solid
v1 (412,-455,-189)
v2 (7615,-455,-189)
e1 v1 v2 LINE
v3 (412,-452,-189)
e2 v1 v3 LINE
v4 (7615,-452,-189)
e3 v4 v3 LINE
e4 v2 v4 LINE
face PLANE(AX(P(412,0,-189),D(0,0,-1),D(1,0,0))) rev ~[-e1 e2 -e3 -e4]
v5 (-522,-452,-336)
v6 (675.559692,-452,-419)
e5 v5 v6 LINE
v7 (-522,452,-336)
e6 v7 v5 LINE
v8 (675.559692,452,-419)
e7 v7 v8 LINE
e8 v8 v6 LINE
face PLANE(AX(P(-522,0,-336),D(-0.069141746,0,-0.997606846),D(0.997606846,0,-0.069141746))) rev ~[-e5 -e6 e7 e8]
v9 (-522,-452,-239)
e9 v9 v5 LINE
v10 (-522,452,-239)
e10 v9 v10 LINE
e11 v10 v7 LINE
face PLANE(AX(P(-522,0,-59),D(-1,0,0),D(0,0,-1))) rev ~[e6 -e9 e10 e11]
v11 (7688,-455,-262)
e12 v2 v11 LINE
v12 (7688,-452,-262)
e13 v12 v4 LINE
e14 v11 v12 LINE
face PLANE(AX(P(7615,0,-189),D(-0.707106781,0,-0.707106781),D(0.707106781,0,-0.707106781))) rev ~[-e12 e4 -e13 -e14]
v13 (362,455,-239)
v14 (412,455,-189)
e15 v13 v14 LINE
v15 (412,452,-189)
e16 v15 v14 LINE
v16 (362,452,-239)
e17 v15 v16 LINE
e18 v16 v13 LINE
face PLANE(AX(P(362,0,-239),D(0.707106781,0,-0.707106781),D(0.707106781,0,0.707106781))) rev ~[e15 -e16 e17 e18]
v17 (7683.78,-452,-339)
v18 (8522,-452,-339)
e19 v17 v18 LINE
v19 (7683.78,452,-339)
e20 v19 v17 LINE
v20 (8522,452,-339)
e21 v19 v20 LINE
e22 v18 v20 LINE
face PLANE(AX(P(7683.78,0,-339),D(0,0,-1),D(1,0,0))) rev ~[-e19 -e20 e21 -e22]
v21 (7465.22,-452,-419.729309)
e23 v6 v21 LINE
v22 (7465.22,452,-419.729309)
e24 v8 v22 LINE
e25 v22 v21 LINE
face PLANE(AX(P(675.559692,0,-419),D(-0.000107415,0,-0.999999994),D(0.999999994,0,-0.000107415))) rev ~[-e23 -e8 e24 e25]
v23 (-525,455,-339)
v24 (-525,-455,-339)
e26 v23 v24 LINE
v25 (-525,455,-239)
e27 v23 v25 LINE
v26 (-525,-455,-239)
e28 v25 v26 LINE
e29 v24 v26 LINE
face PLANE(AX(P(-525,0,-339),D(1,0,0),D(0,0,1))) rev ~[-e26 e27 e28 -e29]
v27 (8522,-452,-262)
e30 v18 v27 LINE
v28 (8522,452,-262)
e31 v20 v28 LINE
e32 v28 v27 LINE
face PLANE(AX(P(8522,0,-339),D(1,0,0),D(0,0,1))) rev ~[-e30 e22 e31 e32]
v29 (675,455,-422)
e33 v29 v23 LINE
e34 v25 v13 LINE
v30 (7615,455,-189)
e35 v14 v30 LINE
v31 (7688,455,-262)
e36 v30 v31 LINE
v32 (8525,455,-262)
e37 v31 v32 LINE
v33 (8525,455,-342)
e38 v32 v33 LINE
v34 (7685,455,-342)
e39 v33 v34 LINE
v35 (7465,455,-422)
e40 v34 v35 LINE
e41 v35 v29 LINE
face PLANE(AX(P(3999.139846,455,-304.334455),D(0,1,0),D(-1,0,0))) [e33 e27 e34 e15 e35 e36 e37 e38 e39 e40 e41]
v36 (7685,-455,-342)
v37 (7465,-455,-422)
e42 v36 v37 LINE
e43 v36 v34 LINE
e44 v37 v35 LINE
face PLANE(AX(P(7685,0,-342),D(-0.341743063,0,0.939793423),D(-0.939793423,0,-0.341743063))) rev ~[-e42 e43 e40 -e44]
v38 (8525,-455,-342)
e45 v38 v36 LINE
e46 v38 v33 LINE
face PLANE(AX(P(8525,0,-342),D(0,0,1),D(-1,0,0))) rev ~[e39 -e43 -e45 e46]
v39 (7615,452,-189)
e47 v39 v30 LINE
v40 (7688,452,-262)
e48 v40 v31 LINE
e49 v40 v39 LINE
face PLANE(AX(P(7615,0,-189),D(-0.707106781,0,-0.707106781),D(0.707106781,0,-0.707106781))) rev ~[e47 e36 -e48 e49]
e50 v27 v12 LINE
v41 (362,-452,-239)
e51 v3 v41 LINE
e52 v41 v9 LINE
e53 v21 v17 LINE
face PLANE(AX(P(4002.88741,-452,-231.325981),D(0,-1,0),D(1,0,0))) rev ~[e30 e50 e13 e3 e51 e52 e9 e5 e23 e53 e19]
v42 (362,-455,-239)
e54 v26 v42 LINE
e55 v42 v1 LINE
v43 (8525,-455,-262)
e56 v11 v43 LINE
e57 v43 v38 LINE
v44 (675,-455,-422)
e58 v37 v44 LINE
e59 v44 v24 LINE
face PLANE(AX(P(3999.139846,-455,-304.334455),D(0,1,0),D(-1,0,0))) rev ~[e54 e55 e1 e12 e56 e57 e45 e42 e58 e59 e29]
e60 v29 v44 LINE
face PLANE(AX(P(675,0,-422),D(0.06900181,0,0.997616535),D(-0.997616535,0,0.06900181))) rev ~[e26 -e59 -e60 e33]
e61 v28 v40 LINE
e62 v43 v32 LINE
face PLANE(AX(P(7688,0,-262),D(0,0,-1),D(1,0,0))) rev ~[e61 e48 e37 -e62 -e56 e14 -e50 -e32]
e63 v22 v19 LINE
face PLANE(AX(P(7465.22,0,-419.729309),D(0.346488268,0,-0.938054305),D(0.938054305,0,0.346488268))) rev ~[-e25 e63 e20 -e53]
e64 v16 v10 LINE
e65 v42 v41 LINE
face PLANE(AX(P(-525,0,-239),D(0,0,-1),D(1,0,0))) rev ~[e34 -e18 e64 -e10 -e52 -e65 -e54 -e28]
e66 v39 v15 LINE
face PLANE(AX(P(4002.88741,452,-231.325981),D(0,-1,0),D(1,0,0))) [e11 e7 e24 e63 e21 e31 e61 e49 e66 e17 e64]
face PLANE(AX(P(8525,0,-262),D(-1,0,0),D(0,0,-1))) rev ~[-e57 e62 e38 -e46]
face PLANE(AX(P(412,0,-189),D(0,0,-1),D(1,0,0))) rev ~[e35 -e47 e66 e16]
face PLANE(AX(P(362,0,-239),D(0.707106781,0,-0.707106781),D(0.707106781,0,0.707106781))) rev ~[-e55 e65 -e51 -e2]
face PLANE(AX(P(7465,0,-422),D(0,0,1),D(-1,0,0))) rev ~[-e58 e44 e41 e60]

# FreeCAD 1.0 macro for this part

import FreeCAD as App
import Part
import Sketcher
Q = App.Units.Quantity


def add_polygon(sketch, points):
    """Adds a closed chain of lines whose ends are joined by coincident constraints."""
    first, n = sketch.GeometryCount, len(points)
    for a, b in zip(points, points[1:] + points[:1]):
        sketch.addGeometry(Part.LineSegment(App.Vector(*a, 0), App.Vector(*b, 0)), False)
    for i in range(n):
        sketch.addConstraint(Sketcher.Constraint("Coincident", first + i, 2, first + (i + 1) % n, 1))

doc = App.newDocument("Part")
body = doc.addObject("PartDesign::Body", "Body")

sketch1 = body.newObject("Sketcher::SketchObject", "Sketch")
sketch1.AttachmentSupport = (doc.getObject("XZ_Plane"), [""])
sketch1.MapMode = "FlatFace"
add_polygon(sketch1, [(-522, -59), (-522, -336), (676, -419), (7465, -420), (7684, -339), (8522, -339), (8522, -59)])
sketch1.addConstraint(Sketcher.Constraint("Vertical", 0))
sketch1.addConstraint(Sketcher.Constraint("Horizontal", 4))
sketch1.addConstraint(Sketcher.Constraint("Vertical", 5))
sketch1.addConstraint(Sketcher.Constraint("Horizontal", 6))
sketch1.addConstraint(Sketcher.Constraint("DistanceX", 6, 2, 6, 1, 9044.0))
sketch1.addConstraint(Sketcher.Constraint("DistanceY", 0, 2, 0, 1, 277.0))
sketch1.addConstraint(Sketcher.Constraint("DistanceY", 5, 1, 5, 2, 280.0))
sketch1.addConstraint(Sketcher.Constraint("DistanceX", 0, 2, -1, 1, 522.0))
sketch1.addConstraint(Sketcher.Constraint("DistanceY", 0, 2, -1, 1, 336.0))
sketch1.addConstraint(Sketcher.Constraint("DistanceY", 1, 2, -1, 1, 419.0))
sketch1.addConstraint(Sketcher.Constraint("DistanceX", 4, 1, 4, 2, 838.22))
sketch1.addConstraint(Sketcher.Constraint("DistanceX", -1, 1, 2, 2, 7465.22))
sketch1.addConstraint(Sketcher.Constraint("DistanceX", -1, 1, 1, 2, 675.559692))
sketch1.addConstraint(Sketcher.Constraint("DistanceY", 2, 2, -1, 1, 419.729309))
pad1 = body.newObject("PartDesign::Pad", "Pad")
pad1.Profile = sketch1
pad1.Length = 904
pad1.Midplane = True
body2 = doc.addObject("PartDesign::Body", "Body001")

sketch2 = body2.newObject("Sketcher::SketchObject", "Sketch001")
sketch2.AttachmentSupport = (doc.getObject("XZ_Plane001"), [""])
sketch2.MapMode = "FlatFace"
add_polygon(sketch2, [(362, -239), (-525, -239), (-525, -339), (675, -422), (7465, -422), (7685, -342), (8525, -342), (8525, -262), (7688, -262), (7615, -189), (412, -189)])
sketch2.addConstraint(Sketcher.Constraint("Horizontal", 0))
sketch2.addConstraint(Sketcher.Constraint("Vertical", 1))
sketch2.addConstraint(Sketcher.Constraint("Horizontal", 3))
sketch2.addConstraint(Sketcher.Constraint("Horizontal", 5))
sketch2.addConstraint(Sketcher.Constraint("Vertical", 6))
sketch2.addConstraint(Sketcher.Constraint("Horizontal", 7))
sketch2.addConstraint(Sketcher.Constraint("Horizontal", 9))
sketch2.addConstraint(Sketcher.Constraint("Perpendicular", 8, 10))
sketch2.addConstraint(Sketcher.Constraint("DistanceX", 0, 2, 0, 1, 887.0))
sketch2.addConstraint(Sketcher.Constraint("DistanceX", 3, 1, 3, 2, 6790.0))
sketch2.addConstraint(Sketcher.Constraint("DistanceX", 5, 1, 5, 2, 840.0))
sketch2.addConstraint(Sketcher.Constraint("DistanceX", 7, 2, 7, 1, 837.0))
sketch2.addConstraint(Sketcher.Constraint("DistanceX", 9, 2, 9, 1, 7203.0))
sketch2.addConstraint(Sketcher.Constraint("DistanceY", 1, 2, 1, 1, 100.0))
sketch2.addConstraint(Sketcher.Constraint("DistanceY", 6, 1, 6, 2, 80.0))
sketch2.addConstraint(Sketcher.Constraint("Angle", 8, Q("135 deg")))
sketch2.addConstraint(Sketcher.Constraint("DistanceX", 0, 2, -1, 1, 525.0))
sketch2.addConstraint(Sketcher.Constraint("DistanceY", 0, 2, -1, 1, 239.0))
sketch2.addConstraint(Sketcher.Constraint("DistanceX", -1, 1, 2, 2, 675.0))
sketch2.addConstraint(Sketcher.Constraint("DistanceY", 2, 2, -1, 1, 422.0))
sketch2.addConstraint(Sketcher.Constraint("DistanceX", -1, 1, 4, 2, 7685.0))
sketch2.addConstraint(Sketcher.Constraint("DistanceY", 4, 2, -1, 1, 342.0))
pad2 = body2.newObject("PartDesign::Pad", "Pad001")
pad2.Profile = sketch2
pad2.Length = 910
pad2.Midplane = True
doc.recompute()

boolean = body2.newObject("PartDesign::Boolean", "Boolean")
boolean.Type = "Cut"
boolean.addObjects([body])

doc.recompute()
